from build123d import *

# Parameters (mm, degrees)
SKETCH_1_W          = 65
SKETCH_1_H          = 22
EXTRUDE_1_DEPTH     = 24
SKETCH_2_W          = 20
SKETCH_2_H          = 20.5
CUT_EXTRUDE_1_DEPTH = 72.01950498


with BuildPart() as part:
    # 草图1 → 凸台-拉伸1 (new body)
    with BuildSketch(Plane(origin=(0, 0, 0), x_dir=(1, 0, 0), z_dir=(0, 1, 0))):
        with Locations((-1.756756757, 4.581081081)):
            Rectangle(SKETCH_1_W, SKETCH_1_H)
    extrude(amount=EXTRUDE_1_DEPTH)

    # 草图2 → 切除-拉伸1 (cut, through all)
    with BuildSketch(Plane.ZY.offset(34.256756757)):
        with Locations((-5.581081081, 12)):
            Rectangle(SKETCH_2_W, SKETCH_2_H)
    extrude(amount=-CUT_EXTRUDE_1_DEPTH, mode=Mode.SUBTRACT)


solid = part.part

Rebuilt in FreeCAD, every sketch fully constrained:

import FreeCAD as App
import Part
import Sketcher

V = App.Vector
Q = App.Units.Quantity

doc = App.newDocument("Part")
params = doc.addObject("Spreadsheet::Sheet", "Params")
for row, (alias, value) in enumerate([
    ("sketch1_width", "65 mm"),
    ("sketch1_height", "22 mm"),
    ("pad1_length", "24 mm"),
    ("sketch2_height", "20 mm"),
    ("sketch2_width", "20.5 mm"),
], start=1):
    params.set(f"A{row}", alias)
    params.set(f"B{row}", "=" + value)
    params.setAlias(f"B{row}", alias)

body = doc.addObject("PartDesign::Body", "Body")

sketch1 = body.newObject("Sketcher::SketchObject", "Sketch")
sketch1.AttachmentSupport = (doc.getObject("XZ_Plane"), [""])
sketch1.MapMode = "FlatFace"
sketch1.addGeometry([
    Part.LineSegment(V(-34.256757, -15.581081, 0), V(-34.256757, 6.418919, 0)),
    Part.LineSegment(V(-34.256757, 6.418919, 0), V(30.743243, 6.418919, 0)),
    Part.LineSegment(V(30.743243, 6.418919, 0), V(30.743243, -15.581081, 0)),
    Part.LineSegment(V(30.743243, -15.581081, 0), V(-34.256757, -15.581081, 0)),
], False)
sketch1.addConstraint([
    Sketcher.Constraint("Coincident", 0, 2, 1, 1),
    Sketcher.Constraint("Coincident", 1, 2, 2, 1),
    Sketcher.Constraint("Coincident", 2, 2, 3, 1),
    Sketcher.Constraint("Coincident", 3, 2, 0, 1),
    Sketcher.Constraint("Vertical", 0),
    Sketcher.Constraint("Horizontal", 1),
    Sketcher.Constraint("Vertical", 2),
    Sketcher.Constraint("Horizontal", 3),
    Sketcher.Constraint("DistanceX", 1, 1, 1, 2, Q("65 mm")),
    Sketcher.Constraint("DistanceY", 0, 1, 0, 2, Q("22 mm")),
    Sketcher.Constraint("DistanceY", -1, 1, 0, 2, Q("6.418919 mm")),
    Sketcher.Constraint("DistanceX", 0, 2, -1, 1, Q("34.256757 mm")),
])
sketch1.setExpression("Constraints[8]", "Params.sketch1_width")
sketch1.setExpression("Constraints[9]", "Params.sketch1_height")
pad1 = body.newObject("PartDesign::Pad", "Pad")
pad1.Profile = sketch1
pad1.setExpression("Length", "Params.pad1_length")
pad1.Reversed = True

sketch2 = body.newObject("Sketcher::SketchObject", "Sketch001")
sketch2.AttachmentSupport = (doc.getObject("YZ_Plane"), [""])
sketch2.MapMode = "FlatFace"
sketch2.AttachmentOffset = App.Placement(V(0, 0, -34.256757), App.Rotation())
sketch2.addGeometry([
    Part.LineSegment(V(22.25, -15.581081, 0), V(1.75, -15.581081, 0)),
    Part.LineSegment(V(1.75, -15.581081, 0), V(1.75, 4.418919, 0)),
    Part.LineSegment(V(1.75, 4.418919, 0), V(22.25, 4.418919, 0)),
    Part.LineSegment(V(22.25, 4.418919, 0), V(22.25, -15.581081, 0)),
], False)
sketch2.addConstraint([
    Sketcher.Constraint("Coincident", 0, 2, 1, 1),
    Sketcher.Constraint("Coincident", 1, 2, 2, 1),
    Sketcher.Constraint("Coincident", 2, 2, 3, 1),
    Sketcher.Constraint("Coincident", 3, 2, 0, 1),
    Sketcher.Constraint("Horizontal", 0),
    Sketcher.Constraint("Vertical", 1),
    Sketcher.Constraint("Horizontal", 2),
    Sketcher.Constraint("Vertical", 3),
    Sketcher.Constraint("DistanceY", 1, 1, 1, 2, Q("20 mm")),
    Sketcher.Constraint("DistanceX", 0, 2, 0, 1, Q("20.5 mm")),
    Sketcher.Constraint("DistanceX", -1, 1, 0, 2, Q("1.75 mm")),
    Sketcher.Constraint("DistanceY", 0, 2, -1, 1, Q("15.581081 mm")),
])
sketch2.setExpression("Constraints[8]", "Params.sketch2_height")
sketch2.setExpression("Constraints[9]", "Params.sketch2_width")
pocket1 = body.newObject("PartDesign::Pocket", "Pocket")
pocket1.Profile = sketch2
pocket1.Type = "ThroughAll"
pocket1.Reversed = True

doc.recompute()
